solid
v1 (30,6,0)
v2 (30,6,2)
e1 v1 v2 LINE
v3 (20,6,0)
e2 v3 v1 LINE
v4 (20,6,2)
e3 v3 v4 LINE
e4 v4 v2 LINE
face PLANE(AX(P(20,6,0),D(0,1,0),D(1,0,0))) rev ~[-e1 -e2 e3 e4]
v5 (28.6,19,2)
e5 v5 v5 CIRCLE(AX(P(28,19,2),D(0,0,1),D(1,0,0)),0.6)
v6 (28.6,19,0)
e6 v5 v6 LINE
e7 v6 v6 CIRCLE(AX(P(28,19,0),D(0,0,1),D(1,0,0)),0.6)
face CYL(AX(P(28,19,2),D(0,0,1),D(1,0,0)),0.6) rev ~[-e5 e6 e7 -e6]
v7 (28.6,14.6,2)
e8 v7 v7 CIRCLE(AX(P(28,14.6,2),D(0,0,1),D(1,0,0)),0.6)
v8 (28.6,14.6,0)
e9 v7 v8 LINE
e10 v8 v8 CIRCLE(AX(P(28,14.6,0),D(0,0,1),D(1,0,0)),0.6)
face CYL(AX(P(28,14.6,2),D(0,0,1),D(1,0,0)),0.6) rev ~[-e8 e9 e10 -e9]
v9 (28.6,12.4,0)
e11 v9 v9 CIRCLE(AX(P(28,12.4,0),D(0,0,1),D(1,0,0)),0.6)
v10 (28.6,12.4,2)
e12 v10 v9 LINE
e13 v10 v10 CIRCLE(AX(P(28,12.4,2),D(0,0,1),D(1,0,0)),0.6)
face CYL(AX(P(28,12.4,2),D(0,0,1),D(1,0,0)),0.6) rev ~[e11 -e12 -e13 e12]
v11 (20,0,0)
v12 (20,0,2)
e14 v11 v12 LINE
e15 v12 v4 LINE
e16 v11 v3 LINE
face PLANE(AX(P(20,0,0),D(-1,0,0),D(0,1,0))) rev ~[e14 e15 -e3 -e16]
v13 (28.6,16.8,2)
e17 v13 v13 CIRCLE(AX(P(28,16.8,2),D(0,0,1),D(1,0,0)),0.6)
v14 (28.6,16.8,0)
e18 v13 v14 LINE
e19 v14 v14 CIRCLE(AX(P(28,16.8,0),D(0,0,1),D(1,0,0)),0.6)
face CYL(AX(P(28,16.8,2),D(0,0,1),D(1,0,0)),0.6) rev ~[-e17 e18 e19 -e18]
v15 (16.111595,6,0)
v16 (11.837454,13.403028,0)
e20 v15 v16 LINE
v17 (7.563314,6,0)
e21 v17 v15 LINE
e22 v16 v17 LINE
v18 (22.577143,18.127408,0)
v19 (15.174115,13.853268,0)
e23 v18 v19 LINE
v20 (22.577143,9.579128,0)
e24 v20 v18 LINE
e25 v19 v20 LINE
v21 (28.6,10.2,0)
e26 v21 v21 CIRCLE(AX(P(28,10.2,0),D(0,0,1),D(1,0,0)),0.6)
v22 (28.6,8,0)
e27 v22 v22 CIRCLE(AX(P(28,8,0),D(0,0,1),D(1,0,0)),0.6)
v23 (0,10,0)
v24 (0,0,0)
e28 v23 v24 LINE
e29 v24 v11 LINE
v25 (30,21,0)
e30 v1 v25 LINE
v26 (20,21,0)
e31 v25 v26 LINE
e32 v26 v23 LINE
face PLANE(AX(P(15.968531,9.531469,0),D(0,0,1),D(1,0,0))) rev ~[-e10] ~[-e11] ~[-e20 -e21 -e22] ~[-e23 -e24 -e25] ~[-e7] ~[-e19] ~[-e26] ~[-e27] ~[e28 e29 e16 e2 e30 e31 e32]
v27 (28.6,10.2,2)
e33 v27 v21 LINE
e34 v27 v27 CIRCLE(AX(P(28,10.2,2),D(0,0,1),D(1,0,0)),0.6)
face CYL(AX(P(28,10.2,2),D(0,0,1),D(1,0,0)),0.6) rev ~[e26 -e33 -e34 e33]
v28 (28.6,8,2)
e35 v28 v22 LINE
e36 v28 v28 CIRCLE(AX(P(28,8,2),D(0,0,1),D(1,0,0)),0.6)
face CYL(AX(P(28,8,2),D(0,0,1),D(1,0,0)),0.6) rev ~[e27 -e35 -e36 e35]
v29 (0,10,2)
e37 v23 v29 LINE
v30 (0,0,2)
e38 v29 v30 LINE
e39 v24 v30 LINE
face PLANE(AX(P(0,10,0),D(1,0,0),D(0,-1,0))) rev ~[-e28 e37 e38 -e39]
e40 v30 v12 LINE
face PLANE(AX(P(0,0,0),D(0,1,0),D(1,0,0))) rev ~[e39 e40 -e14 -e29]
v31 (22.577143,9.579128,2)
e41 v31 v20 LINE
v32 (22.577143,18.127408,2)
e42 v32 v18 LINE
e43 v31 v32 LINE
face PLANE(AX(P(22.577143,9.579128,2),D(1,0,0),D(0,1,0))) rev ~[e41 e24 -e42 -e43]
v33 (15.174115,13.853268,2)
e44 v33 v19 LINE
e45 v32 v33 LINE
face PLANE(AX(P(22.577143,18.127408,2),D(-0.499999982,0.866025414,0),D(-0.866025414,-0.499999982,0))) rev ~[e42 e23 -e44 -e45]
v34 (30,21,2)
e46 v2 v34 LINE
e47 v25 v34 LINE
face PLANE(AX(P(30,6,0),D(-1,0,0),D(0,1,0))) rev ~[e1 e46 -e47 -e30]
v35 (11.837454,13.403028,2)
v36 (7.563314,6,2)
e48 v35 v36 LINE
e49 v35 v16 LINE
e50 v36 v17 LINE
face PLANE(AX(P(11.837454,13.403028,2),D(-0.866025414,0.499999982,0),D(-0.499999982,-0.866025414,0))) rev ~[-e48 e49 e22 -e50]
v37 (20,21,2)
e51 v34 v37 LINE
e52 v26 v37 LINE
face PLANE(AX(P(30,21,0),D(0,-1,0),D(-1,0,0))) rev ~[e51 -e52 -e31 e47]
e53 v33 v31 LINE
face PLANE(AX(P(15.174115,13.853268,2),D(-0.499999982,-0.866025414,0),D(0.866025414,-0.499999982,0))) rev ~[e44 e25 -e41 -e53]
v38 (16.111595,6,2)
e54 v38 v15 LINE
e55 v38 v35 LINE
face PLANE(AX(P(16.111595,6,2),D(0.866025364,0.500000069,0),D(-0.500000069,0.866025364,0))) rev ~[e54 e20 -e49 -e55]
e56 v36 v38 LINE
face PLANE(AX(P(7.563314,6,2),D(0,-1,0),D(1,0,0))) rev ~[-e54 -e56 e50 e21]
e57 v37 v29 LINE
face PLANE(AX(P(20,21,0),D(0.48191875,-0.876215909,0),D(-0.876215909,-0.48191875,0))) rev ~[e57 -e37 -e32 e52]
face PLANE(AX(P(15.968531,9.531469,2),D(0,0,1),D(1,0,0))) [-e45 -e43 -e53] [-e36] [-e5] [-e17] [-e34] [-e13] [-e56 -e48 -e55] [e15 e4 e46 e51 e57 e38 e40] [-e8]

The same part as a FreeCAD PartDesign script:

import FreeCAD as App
import Part
import Sketcher

V = App.Vector
Q = App.Units.Quantity

doc = App.newDocument("Part")
params = doc.addObject("Spreadsheet::Sheet", "Params")
for row, (alias, value) in enumerate([
    ("sketch1_width", "20 mm"),
    ("sketch1_width2", "10 mm"),
    ("sketch1_height", "6 mm"),
    ("sketch1_height2", "15 mm"),
    ("pad1_length", "2 mm"),
    ("sketch2_diameter", "1.2 mm"),
    ("linearpattern_pitch", "2.2 mm"),
], start=1):
    params.set(f"A{row}", alias)
    params.set(f"B{row}", "=" + value)
    params.setAlias(f"B{row}", alias)

body = doc.addObject("PartDesign::Body", "Body")

sketch1 = body.newObject("Sketcher::SketchObject", "Sketch")
sketch1.AttachmentSupport = (doc.getObject("XY_Plane"), [""])
sketch1.MapMode = "FlatFace"
sketch1.addGeometry([
    Part.LineSegment(V(0, 0, 0), V(20, 0, 0)),
    Part.LineSegment(V(20, 0, 0), V(20, 6, 0)),
    Part.LineSegment(V(20, 6, 0), V(30, 6, 0)),
    Part.LineSegment(V(30, 6, 0), V(30, 21, 0)),
    Part.LineSegment(V(30, 21, 0), V(20, 21, 0)),
    Part.LineSegment(V(20, 21, 0), V(0, 10, 0)),
    Part.LineSegment(V(0, 10, 0), V(0, 0, 0)),
], False)
sketch1.addConstraint([
    Sketcher.Constraint("Coincident", 0, 2, 1, 1),
    Sketcher.Constraint("Coincident", 1, 2, 2, 1),
    Sketcher.Constraint("Coincident", 2, 2, 3, 1),
    Sketcher.Constraint("Coincident", 3, 2, 4, 1),
    Sketcher.Constraint("Coincident", 4, 2, 5, 1),
    Sketcher.Constraint("Coincident", 5, 2, 6, 1),
    Sketcher.Constraint("Coincident", 6, 2, 0, 1),
    Sketcher.Constraint("Horizontal", 0),
    Sketcher.Constraint("Vertical", 1),
    Sketcher.Constraint("Horizontal", 2),
    Sketcher.Constraint("Vertical", 3),
    Sketcher.Constraint("Horizontal", 4),
    Sketcher.Constraint("Vertical", 6),
    Sketcher.Constraint("Coincident", 6, 2, -1, 1),
    Sketcher.Constraint("Vertical", 1, 2, 4, 2),
    Sketcher.Constraint("Equal", 4, 6),
    Sketcher.Constraint("DistanceX", 0, 1, 0, 2, Q("20 mm")),
    Sketcher.Constraint("DistanceX", 2, 1, 2, 2, Q("10 mm")),
    Sketcher.Constraint("DistanceY", 1, 1, 1, 2, Q("6 mm")),
    Sketcher.Constraint("DistanceY", 3, 1, 3, 2, Q("15 mm")),
])
sketch1.setExpression("Constraints[16]", "Params.sketch1_width")
sketch1.setExpression("Constraints[17]", "Params.sketch1_width2")
sketch1.setExpression("Constraints[18]", "Params.sketch1_height")
sketch1.setExpression("Constraints[19]", "Params.sketch1_height2")
pad1 = body.newObject("PartDesign::Pad", "Pad")
pad1.Profile = sketch1
pad1.setExpression("Length", "Params.pad1_length")

sketch2 = body.newObject("Sketcher::SketchObject", "Sketch001")
sketch2.AttachmentSupport = (doc.getObject("XY_Plane"), [""])
sketch2.MapMode = "FlatFace"
sketch2.AttachmentOffset = App.Placement(V(0, 0, 2), App.Rotation())
sketch2.addGeometry(Part.Circle(V(28, 19, 0), V(0, 0, 1), 0.6), False)
sketch2.addConstraint([
    Sketcher.Constraint("Diameter", 0, Q("1.2 mm")),
    Sketcher.Constraint("DistanceX", -1, 1, 0, 3, Q("28 mm")),
    Sketcher.Constraint("DistanceY", -1, 1, 0, 3, Q("19 mm")),
])
sketch2.setExpression("Constraints[0]", "Params.sketch2_diameter")
pocket1 = body.newObject("PartDesign::Pocket", "Pocket")
pocket1.Profile = sketch2
pocket1.Type = "ThroughAll"
doc.recompute()

linearpattern = body.newObject("PartDesign::LinearPattern", "LinearPattern")
linearpattern.Originals = [pocket1]
linearpattern.Direction = (doc.getObject("Y_Axis"), [""])
linearpattern.Mode = "offset"
linearpattern.setExpression("Offset", "Params.linearpattern_pitch")
linearpattern.Occurrences = 6
linearpattern.Reversed = True
body.Tip = linearpattern

sketch3 = body.newObject("Sketcher::SketchObject", "Sketch002")
sketch3.AttachmentSupport = (doc.getObject("XY_Plane"), [""])
sketch3.MapMode = "FlatFace"
sketch3.AttachmentOffset = App.Placement(V(0, 0, 2), App.Rotation())
sketch3.addGeometry([
    Part.LineSegment(V(12, 13, 0), V(8, 6, 0)),
    Part.LineSegment(V(8, 6, 0), V(16, 6, 0)),
    Part.LineSegment(V(16, 6, 0), V(12, 13, 0)),
    Part.LineSegment(V(23, 10, 0), V(23, 18, 0)),
    Part.LineSegment(V(23, 18, 0), V(15, 14, 0)),
    Part.LineSegment(V(15, 14, 0), V(23, 10, 0)),
], False)
sketch3.addConstraint([
    Sketcher.Constraint("Coincident", 0, 2, 1, 1),
    Sketcher.Constraint("Coincident", 1, 2, 2, 1),
    Sketcher.Constraint("Coincident", 2, 2, 0, 1),
    Sketcher.Constraint("Coincident", 3, 2, 4, 1),
    Sketcher.Constraint("Coincident", 4, 2, 5, 1),
    Sketcher.Constraint("Coincident", 5, 2, 3, 1),
    Sketcher.Constraint("Horizontal", 1),
    Sketcher.Constraint("Vertical", 3),
    Sketcher.Constraint("Perpendicular", 2, 4),
    Sketcher.Constraint("Perpendicular", 0, 5),
    Sketcher.Constraint("Equal", 1, 3),
    Sketcher.Constraint("Equal", 0, 2),
    Sketcher.Constraint("Angle", 0, Q("-119.999999 deg")),
    Sketcher.Constraint("DistanceY", -1, 1, 0, 2, Q("6 mm")),
    Sketcher.Constraint("DistanceX", 1, 1, 1, 2, Q("8.548281 mm")),
    Sketcher.Constraint("DistanceX", 0, 2, 4, 2, Q("7.610801 mm")),
    Sketcher.Constraint("DistanceY", 5, 2, 2, 2, Q("3.8239 mm")),
    Sketcher.Constraint("DistanceX", -1, 1, 0, 2, Q("7.563314 mm")),
])
pocket2 = body.newObject("PartDesign::Pocket", "Pocket001")
pocket2.Profile = sketch3
pocket2.Type = "ThroughAll"

doc.recompute()
